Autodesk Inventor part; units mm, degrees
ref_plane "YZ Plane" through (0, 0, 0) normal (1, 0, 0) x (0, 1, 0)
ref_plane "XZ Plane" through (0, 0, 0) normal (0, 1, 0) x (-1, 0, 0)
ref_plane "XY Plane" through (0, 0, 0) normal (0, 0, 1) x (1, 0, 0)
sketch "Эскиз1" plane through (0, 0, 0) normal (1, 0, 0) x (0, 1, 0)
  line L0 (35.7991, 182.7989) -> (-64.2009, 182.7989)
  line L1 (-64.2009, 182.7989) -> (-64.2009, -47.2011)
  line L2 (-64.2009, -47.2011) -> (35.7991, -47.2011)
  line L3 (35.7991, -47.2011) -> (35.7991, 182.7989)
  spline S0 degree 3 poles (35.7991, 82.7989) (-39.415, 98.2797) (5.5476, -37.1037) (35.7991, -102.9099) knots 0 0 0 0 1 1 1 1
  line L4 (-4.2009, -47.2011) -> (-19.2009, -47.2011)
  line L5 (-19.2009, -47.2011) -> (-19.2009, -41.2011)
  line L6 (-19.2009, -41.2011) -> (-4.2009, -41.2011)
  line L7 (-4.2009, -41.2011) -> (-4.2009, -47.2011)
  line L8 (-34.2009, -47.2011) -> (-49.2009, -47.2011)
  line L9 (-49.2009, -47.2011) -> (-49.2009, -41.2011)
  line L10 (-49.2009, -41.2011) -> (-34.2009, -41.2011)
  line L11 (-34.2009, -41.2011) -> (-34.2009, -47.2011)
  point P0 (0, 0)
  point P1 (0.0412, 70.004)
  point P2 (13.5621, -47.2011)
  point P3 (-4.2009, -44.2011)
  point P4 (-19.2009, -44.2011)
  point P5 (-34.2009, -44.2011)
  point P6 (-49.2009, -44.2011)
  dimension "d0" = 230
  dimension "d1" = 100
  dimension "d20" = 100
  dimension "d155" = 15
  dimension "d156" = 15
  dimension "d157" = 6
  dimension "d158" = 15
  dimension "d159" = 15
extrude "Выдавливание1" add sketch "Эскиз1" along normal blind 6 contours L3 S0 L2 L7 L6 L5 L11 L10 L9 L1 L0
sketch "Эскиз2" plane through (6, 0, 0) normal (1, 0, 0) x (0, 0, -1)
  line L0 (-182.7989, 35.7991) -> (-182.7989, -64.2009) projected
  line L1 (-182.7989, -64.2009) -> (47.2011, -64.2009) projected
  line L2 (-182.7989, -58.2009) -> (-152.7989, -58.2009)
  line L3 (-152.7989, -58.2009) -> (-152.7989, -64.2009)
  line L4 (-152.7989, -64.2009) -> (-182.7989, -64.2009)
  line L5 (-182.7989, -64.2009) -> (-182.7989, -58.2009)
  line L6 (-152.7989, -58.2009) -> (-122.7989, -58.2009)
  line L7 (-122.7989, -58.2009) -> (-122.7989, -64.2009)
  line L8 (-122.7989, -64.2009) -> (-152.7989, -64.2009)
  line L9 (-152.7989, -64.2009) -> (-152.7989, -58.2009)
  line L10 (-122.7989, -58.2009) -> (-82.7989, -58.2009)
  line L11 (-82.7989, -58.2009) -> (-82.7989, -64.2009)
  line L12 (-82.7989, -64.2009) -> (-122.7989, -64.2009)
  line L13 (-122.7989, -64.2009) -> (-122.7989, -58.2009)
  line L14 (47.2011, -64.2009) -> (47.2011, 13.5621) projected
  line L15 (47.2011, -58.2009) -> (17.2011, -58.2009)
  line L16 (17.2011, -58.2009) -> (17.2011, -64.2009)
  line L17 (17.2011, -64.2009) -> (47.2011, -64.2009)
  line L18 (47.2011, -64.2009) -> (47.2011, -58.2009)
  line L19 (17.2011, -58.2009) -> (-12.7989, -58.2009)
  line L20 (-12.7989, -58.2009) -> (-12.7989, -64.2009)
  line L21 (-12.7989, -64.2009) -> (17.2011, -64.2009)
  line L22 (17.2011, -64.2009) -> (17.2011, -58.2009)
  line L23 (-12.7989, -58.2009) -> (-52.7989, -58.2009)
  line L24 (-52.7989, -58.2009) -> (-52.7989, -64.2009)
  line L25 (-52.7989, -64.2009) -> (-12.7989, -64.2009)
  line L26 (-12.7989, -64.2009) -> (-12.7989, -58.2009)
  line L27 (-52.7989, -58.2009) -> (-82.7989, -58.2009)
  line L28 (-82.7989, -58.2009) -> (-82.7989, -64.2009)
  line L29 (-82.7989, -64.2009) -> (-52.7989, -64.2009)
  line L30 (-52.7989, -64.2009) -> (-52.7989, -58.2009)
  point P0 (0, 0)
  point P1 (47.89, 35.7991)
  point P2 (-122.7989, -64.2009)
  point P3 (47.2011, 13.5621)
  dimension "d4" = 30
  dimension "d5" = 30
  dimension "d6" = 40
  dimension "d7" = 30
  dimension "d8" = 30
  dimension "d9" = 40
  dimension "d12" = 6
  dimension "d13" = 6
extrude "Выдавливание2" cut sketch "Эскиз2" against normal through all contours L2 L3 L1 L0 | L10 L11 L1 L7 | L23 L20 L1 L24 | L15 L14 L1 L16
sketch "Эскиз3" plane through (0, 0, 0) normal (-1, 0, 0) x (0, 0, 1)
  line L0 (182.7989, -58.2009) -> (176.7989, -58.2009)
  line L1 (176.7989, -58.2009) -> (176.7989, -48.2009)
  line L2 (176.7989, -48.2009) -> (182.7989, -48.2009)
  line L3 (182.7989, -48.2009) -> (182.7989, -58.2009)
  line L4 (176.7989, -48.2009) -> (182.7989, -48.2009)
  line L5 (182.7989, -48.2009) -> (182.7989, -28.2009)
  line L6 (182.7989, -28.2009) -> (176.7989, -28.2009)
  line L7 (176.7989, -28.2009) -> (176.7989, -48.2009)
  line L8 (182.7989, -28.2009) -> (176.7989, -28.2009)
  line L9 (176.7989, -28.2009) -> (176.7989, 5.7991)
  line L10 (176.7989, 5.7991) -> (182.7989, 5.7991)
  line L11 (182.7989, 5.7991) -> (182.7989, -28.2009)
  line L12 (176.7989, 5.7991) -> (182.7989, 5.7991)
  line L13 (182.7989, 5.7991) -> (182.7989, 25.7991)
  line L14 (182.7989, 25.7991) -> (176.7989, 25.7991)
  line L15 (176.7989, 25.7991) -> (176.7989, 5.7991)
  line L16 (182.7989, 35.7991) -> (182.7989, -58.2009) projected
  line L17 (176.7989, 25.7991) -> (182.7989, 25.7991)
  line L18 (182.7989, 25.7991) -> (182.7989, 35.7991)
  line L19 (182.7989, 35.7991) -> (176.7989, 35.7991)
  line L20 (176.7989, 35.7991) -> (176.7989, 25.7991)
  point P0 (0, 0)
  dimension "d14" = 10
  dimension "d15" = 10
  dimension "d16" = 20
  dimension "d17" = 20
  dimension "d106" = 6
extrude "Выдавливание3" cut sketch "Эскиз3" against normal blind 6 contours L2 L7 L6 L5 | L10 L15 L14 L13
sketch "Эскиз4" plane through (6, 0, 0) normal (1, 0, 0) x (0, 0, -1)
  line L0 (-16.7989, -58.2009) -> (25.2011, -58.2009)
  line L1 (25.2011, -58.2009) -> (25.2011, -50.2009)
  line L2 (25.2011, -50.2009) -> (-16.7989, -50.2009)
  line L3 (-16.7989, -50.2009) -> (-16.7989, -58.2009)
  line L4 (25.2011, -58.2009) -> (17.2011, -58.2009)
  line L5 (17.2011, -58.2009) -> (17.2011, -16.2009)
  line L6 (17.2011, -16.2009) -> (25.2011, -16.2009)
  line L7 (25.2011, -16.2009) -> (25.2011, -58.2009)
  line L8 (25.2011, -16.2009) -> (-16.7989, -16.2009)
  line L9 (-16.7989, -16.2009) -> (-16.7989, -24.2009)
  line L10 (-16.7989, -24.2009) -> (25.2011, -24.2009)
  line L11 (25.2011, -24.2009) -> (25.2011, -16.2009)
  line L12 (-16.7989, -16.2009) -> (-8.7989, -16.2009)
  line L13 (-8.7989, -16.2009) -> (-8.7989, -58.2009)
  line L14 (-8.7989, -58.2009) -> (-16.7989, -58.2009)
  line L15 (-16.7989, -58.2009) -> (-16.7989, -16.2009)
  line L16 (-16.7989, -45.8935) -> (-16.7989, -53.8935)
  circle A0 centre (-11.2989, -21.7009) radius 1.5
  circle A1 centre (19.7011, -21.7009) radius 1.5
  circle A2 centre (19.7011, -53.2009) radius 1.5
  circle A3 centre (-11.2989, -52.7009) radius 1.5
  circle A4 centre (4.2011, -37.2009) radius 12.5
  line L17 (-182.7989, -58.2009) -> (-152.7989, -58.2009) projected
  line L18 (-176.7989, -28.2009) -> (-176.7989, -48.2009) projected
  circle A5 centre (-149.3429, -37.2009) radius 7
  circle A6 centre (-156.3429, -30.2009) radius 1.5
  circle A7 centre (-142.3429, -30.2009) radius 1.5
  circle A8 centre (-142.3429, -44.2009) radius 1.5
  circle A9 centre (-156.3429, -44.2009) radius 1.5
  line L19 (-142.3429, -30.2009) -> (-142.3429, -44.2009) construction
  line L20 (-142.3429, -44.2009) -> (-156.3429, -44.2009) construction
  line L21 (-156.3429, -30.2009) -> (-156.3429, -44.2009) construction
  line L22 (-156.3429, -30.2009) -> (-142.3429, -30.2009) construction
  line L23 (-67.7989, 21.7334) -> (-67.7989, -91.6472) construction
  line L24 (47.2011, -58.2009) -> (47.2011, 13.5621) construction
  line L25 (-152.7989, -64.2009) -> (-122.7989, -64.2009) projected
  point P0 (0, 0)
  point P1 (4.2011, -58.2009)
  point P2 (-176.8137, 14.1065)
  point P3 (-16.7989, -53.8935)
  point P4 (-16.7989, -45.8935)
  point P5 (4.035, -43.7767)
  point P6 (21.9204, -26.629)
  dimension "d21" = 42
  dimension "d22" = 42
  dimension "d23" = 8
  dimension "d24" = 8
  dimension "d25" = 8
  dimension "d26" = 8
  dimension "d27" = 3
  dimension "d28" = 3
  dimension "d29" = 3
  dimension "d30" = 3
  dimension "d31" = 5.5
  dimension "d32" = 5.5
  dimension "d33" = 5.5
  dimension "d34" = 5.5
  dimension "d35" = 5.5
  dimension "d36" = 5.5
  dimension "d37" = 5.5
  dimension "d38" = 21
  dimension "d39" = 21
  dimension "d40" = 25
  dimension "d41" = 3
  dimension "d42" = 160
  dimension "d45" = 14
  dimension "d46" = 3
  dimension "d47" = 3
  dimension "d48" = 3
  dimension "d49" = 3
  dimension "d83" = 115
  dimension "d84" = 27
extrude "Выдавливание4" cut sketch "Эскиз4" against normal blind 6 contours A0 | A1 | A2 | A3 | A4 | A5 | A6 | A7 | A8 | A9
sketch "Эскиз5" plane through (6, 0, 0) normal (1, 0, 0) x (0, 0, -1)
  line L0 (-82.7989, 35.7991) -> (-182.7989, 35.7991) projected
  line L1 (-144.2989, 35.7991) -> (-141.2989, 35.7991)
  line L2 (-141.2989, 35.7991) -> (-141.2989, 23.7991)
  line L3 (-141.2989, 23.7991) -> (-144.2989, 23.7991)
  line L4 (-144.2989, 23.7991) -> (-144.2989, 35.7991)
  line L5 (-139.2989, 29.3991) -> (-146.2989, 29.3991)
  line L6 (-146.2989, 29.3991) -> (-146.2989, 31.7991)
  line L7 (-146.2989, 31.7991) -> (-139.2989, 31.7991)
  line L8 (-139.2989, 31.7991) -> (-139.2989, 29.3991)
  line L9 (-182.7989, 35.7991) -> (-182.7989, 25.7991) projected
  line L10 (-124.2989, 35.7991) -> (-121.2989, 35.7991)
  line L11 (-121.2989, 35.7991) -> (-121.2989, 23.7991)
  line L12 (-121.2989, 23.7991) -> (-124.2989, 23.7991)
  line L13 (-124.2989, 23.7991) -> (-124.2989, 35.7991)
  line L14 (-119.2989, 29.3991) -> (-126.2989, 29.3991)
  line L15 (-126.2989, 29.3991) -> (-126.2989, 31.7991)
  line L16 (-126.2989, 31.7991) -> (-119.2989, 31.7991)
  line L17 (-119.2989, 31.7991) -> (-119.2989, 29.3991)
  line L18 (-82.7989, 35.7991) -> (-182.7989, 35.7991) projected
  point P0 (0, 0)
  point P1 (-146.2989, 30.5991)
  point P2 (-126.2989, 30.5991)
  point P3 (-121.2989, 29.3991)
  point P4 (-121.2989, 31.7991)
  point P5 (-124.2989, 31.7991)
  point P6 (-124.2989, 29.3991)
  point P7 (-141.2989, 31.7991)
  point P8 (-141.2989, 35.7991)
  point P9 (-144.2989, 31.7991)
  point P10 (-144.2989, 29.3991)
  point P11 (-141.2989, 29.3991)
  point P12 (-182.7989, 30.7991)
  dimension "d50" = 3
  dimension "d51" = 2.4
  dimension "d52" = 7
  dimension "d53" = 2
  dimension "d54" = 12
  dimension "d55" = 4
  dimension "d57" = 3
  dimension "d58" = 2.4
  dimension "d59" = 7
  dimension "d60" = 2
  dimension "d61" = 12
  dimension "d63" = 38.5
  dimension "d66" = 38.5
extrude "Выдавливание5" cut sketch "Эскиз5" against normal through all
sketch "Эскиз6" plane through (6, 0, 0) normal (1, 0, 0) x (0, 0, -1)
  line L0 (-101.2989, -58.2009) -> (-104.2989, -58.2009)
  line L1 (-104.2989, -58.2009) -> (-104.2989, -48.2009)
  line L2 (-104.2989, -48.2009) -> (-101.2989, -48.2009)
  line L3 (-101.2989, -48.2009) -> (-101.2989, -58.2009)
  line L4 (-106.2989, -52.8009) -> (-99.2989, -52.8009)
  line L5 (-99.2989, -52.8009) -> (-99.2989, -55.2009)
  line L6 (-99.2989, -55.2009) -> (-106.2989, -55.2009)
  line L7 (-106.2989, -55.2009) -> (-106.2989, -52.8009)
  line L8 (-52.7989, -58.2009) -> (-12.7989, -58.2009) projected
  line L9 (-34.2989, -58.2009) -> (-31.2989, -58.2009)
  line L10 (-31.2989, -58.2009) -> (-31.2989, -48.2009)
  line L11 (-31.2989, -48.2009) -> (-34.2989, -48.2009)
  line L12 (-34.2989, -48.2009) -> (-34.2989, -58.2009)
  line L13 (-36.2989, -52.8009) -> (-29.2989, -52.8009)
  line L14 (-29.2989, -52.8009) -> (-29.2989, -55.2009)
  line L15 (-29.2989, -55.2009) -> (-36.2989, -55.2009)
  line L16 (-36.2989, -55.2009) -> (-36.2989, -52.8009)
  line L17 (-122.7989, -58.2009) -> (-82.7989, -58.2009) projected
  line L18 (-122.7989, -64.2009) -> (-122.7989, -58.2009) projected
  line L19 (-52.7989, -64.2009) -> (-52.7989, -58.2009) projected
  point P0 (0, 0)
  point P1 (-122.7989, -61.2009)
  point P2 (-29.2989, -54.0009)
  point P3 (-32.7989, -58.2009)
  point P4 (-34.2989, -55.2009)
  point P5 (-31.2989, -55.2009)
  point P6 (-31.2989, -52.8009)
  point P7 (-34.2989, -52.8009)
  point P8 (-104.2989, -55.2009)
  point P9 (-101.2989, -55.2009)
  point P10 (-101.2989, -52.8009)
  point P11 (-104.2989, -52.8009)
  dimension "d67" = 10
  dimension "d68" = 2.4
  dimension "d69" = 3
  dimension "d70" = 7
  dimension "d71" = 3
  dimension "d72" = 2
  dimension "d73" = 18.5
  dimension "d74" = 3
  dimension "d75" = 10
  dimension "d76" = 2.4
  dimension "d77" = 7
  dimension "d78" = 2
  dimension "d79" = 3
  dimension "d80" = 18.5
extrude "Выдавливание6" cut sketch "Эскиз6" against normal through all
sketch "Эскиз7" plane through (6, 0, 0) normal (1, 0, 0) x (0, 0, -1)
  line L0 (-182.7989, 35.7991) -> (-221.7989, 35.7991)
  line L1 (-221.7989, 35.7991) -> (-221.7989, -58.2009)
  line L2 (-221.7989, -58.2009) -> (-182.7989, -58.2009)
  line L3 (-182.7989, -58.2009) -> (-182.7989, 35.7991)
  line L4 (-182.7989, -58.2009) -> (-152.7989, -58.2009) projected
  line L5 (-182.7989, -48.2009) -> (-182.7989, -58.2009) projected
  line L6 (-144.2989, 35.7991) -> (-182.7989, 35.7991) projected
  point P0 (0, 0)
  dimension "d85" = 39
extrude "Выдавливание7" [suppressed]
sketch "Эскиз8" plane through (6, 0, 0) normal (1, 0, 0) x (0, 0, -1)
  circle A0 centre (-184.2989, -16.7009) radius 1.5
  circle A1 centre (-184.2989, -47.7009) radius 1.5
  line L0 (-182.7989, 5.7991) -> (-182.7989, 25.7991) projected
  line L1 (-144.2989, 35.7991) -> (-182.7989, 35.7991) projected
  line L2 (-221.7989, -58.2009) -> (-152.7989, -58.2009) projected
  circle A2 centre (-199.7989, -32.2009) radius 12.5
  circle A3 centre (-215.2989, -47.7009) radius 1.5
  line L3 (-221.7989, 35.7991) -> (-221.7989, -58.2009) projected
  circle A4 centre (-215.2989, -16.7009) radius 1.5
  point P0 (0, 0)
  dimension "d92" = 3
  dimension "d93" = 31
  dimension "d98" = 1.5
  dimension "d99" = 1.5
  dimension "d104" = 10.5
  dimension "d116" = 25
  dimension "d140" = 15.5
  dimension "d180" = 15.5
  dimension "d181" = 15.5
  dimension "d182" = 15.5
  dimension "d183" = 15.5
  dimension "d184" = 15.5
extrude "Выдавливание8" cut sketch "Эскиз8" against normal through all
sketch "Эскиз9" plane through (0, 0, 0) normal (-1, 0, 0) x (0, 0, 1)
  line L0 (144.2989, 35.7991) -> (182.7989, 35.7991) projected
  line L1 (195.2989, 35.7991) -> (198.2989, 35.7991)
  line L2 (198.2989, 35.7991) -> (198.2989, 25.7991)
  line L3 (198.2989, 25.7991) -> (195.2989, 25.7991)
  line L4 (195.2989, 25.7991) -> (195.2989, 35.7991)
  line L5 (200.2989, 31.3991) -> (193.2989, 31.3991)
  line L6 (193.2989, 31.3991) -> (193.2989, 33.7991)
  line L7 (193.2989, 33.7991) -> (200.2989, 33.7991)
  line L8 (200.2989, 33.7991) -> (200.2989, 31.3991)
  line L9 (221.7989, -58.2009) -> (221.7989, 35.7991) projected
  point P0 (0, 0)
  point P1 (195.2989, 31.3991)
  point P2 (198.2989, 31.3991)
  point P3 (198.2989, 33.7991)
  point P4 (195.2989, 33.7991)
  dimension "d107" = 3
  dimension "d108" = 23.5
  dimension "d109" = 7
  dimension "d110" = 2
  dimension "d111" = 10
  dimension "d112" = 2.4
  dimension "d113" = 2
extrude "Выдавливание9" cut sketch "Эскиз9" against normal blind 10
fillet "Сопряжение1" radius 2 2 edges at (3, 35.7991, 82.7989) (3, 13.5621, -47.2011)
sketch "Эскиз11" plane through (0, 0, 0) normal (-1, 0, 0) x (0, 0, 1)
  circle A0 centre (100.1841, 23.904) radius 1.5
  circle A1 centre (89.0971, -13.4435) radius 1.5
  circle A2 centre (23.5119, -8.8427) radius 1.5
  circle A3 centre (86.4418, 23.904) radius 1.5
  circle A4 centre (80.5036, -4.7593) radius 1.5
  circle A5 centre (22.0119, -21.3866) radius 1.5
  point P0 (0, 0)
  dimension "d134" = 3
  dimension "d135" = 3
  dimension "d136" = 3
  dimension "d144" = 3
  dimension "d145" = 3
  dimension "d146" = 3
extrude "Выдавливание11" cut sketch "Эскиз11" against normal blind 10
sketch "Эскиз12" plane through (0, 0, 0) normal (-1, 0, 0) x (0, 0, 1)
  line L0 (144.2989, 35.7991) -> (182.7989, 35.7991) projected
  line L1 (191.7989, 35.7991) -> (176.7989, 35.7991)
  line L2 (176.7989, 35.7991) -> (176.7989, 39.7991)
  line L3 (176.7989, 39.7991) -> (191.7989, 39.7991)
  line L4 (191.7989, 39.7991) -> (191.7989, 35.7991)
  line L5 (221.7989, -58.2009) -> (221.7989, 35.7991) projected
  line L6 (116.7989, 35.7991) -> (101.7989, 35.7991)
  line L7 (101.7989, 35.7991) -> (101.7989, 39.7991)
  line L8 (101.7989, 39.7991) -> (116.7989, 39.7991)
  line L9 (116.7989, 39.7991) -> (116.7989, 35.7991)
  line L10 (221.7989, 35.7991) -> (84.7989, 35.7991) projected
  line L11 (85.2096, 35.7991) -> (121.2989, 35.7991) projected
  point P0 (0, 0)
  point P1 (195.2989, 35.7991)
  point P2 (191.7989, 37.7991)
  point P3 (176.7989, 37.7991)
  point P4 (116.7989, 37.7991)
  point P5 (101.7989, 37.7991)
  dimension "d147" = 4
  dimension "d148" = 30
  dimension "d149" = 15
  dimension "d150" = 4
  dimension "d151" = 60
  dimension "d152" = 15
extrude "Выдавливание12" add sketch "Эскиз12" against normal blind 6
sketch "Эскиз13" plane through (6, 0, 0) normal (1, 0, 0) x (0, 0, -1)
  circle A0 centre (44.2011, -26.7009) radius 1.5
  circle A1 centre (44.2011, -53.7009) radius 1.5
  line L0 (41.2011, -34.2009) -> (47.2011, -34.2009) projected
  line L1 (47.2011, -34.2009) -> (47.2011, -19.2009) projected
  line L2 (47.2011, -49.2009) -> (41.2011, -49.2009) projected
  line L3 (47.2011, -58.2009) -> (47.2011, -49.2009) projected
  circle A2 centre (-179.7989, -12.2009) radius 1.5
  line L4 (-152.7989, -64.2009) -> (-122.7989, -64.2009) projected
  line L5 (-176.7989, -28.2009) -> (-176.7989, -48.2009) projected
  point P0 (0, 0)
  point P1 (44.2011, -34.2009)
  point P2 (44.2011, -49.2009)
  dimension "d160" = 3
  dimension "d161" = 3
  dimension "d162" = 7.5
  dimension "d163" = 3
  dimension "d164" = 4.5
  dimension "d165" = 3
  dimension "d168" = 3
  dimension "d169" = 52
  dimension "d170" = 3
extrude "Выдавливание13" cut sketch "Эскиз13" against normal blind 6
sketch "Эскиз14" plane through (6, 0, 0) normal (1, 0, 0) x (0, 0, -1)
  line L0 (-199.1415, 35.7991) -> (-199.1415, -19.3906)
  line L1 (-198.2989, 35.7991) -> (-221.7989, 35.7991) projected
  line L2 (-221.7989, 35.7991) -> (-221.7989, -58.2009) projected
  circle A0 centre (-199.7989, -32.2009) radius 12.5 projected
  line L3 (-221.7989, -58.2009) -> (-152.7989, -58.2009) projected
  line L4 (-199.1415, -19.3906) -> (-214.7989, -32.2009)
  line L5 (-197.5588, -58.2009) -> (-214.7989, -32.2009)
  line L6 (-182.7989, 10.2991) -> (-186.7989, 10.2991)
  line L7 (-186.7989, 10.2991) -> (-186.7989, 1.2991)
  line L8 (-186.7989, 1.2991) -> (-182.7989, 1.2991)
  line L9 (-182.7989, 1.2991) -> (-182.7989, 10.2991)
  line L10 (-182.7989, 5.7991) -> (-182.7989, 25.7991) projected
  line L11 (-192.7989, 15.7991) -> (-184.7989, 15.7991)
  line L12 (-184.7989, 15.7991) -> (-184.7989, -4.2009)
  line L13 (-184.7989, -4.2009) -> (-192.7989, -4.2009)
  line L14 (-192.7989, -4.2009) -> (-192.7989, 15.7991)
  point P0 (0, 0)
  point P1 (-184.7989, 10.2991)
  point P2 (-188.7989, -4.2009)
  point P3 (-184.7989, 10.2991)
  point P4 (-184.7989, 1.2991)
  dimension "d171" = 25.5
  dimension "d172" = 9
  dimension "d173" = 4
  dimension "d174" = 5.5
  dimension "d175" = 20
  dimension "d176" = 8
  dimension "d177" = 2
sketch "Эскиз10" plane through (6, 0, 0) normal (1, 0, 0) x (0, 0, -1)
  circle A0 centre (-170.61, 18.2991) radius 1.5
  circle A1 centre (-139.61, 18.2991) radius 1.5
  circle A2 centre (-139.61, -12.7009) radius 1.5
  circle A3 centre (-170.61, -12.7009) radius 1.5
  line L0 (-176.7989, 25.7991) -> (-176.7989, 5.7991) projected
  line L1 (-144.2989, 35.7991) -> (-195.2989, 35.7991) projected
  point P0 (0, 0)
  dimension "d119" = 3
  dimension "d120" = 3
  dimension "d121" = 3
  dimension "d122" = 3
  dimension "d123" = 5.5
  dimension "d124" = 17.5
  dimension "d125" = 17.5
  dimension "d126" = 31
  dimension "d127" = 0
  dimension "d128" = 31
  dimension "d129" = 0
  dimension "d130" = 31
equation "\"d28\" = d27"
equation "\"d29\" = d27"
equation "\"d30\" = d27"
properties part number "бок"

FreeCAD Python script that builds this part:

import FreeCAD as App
import Part
import Sketcher
Q = App.Units.Quantity


def edges_at(feature, points):
    """Names of the edges that pass closest to the given points."""
    edges = feature.Shape.Edges
    near = lambda p: min(range(len(edges)), key=lambda i: edges[i].distToShape(Part.Vertex(*p))[0])
    return sorted({f"Edge{near(p) + 1}" for p in points})

doc = App.newDocument("Part")
body = doc.addObject("PartDesign::Body", "Body")

# Sketch on YZ plane
sketch1 = body.newObject("Sketcher::SketchObject", "Sketch")
sketch1.AttachmentSupport = (doc.getObject("YZ_Plane"), [""])
sketch1.MapMode = "FlatFace"
sketch1.addGeometry([
    Part.LineSegment(App.Vector(35.7991, 82.7989, 0), App.Vector(35.7991, 182.7989, 0)),  # 0
    Part.LineSegment(App.Vector(35.7991, 182.7989, 0), App.Vector(-64.2009, 182.7989, 0)),  # 1
    Part.LineSegment(App.Vector(-64.2009, 182.7989, 0), App.Vector(-64.2009, -47.2011, 0)),  # 2
    Part.LineSegment(App.Vector(-64.2009, -47.2011, 0), App.Vector(-49.2009, -47.2011, 0)),  # 3
    Part.LineSegment(App.Vector(-49.2009, -47.2011, 0), App.Vector(-49.2009, -41.2011, 0)),  # 4
    Part.LineSegment(App.Vector(-49.2009, -41.2011, 0), App.Vector(-34.2009, -41.2011, 0)),  # 5
    Part.LineSegment(App.Vector(-34.2009, -41.2011, 0), App.Vector(-34.2009, -47.2011, 0)),  # 6
    Part.LineSegment(App.Vector(-34.2009, -47.2011, 0), App.Vector(-19.2009, -47.2011, 0)),  # 7
    Part.LineSegment(App.Vector(-19.2009, -47.2011, 0), App.Vector(-19.2009, -41.2011, 0)),  # 8
    Part.LineSegment(App.Vector(-19.2009, -41.2011, 0), App.Vector(-4.2009, -41.2011, 0)),  # 9
    Part.LineSegment(App.Vector(-4.2009, -41.2011, 0), App.Vector(-4.2009, -47.2011, 0)),  # 10
    Part.LineSegment(App.Vector(-4.2009, -47.2011, 0), App.Vector(13.562104, -47.2011, 0)),  # 11
    Part.BSplineCurve([App.Vector(35.7991, 82.7989, 0), App.Vector(-21.551287, 94.602935, 0), App.Vector(-9.031077, 18.694695, 0), App.Vector(13.562104, -47.2011, 0)], [4, 4], [0, 0.762495158], False, 3, [1, 1, 1, 1], False),  # 12
], False)
sketch1.addConstraint([
    Sketcher.Constraint("Block", 12),
    Sketcher.Constraint("Coincident", 0, 2, 1, 1),
    Sketcher.Constraint("Coincident", 1, 2, 2, 1),
    Sketcher.Constraint("Coincident", 2, 2, 3, 1),
    Sketcher.Constraint("Coincident", 3, 2, 4, 1),
    Sketcher.Constraint("Coincident", 4, 2, 5, 1),
    Sketcher.Constraint("Coincident", 5, 2, 6, 1),
    Sketcher.Constraint("Coincident", 6, 2, 7, 1),
    Sketcher.Constraint("Coincident", 7, 2, 8, 1),
    Sketcher.Constraint("Coincident", 8, 2, 9, 1),
    Sketcher.Constraint("Coincident", 9, 2, 10, 1),
    Sketcher.Constraint("Coincident", 10, 2, 11, 1),
    Sketcher.Constraint("Coincident", 11, 2, 12, 2),
    Sketcher.Constraint("Coincident", 12, 1, 0, 1),
    Sketcher.Constraint("Vertical", 0),
    Sketcher.Constraint("Horizontal", 1),
    Sketcher.Constraint("Vertical", 2),
    Sketcher.Constraint("Horizontal", 3),
    Sketcher.Constraint("Vertical", 4),
    Sketcher.Constraint("Horizontal", 5),
    Sketcher.Constraint("Vertical", 6),
    Sketcher.Constraint("Horizontal", 7),
    Sketcher.Constraint("Vertical", 8),
    Sketcher.Constraint("Horizontal", 9),
    Sketcher.Constraint("Vertical", 10),
    Sketcher.Constraint("Horizontal", 11),
    Sketcher.Constraint("Horizontal", 3, 2, 6, 2),
    Sketcher.Constraint("Horizontal", 5, 2, 8, 2),
    Sketcher.Constraint("Horizontal", 7, 2, 10, 2),
    Sketcher.Constraint("Equal", 3, 5),
    Sketcher.Constraint("Equal", 5, 7),
    Sketcher.Constraint("Equal", 7, 9),
    Sketcher.Constraint("Equal", 1, 0),
    Sketcher.Constraint("DistanceX", 1, 2, 1, 1, Q("100 mm")),
    Sketcher.Constraint("DistanceX", 3, 1, 3, 2, Q("15 mm")),
    Sketcher.Constraint("DistanceY", 4, 1, 4, 2, Q("6 mm")),
])
pad1 = body.newObject("PartDesign::Pad", "Pad")
pad1.Profile = sketch1
pad1.Length = 6

# Sketch on YZ plane
sketch2 = body.newObject("Sketcher::SketchObject", "Sketch001")
sketch2.AttachmentSupport = (doc.getObject("YZ_Plane"), [""])
sketch2.MapMode = "FlatFace"
sketch2.AttachmentOffset = App.Placement(App.Vector(0, 0, 6), App.Rotation())
sketch2.addGeometry([
    Part.LineSegment(App.Vector(-58, 153, 0), App.Vector(-58, 183, 0)),  # 0
    Part.LineSegment(App.Vector(-58, 183, 0), App.Vector(-64, 183, 0)),  # 1
    Part.LineSegment(App.Vector(-64, 183, 0), App.Vector(-64, 153, 0)),  # 2
    Part.LineSegment(App.Vector(-64, 153, 0), App.Vector(-58, 153, 0)),  # 3
    Part.LineSegment(App.Vector(-58, 83, 0), App.Vector(-58, 123, 0)),  # 4
    Part.LineSegment(App.Vector(-58, 123, 0), App.Vector(-64, 123, 0)),  # 5
    Part.LineSegment(App.Vector(-64, 123, 0), App.Vector(-64, 83, 0)),  # 6
    Part.LineSegment(App.Vector(-64, 83, 0), App.Vector(-58, 83, 0)),  # 7
    Part.LineSegment(App.Vector(-58, 13, 0), App.Vector(-58, 53, 0)),  # 8
    Part.LineSegment(App.Vector(-58, 53, 0), App.Vector(-64, 53, 0)),  # 9
    Part.LineSegment(App.Vector(-64, 53, 0), App.Vector(-64, 13, 0)),  # 10
    Part.LineSegment(App.Vector(-64, 13, 0), App.Vector(-58, 13, 0)),  # 11
    Part.LineSegment(App.Vector(-58, -47, 0), App.Vector(-58, -17, 0)),  # 12
    Part.LineSegment(App.Vector(-58, -17, 0), App.Vector(-64, -17, 0)),  # 13
    Part.LineSegment(App.Vector(-64, -17, 0), App.Vector(-64, -47, 0)),  # 14
    Part.LineSegment(App.Vector(-64, -47, 0), App.Vector(-58, -47, 0)),  # 15
], False)
sketch2.addConstraint([
    Sketcher.Constraint("Coincident", 0, 2, 1, 1),
    Sketcher.Constraint("Coincident", 1, 2, 2, 1),
    Sketcher.Constraint("Coincident", 2, 2, 3, 1),
    Sketcher.Constraint("Coincident", 3, 2, 0, 1),
    Sketcher.Constraint("Coincident", 4, 2, 5, 1),
    Sketcher.Constraint("Coincident", 5, 2, 6, 1),
    Sketcher.Constraint("Coincident", 6, 2, 7, 1),
    Sketcher.Constraint("Coincident", 7, 2, 4, 1),
    Sketcher.Constraint("Coincident", 8, 2, 9, 1),
    Sketcher.Constraint("Coincident", 9, 2, 10, 1),
    Sketcher.Constraint("Coincident", 10, 2, 11, 1),
    Sketcher.Constraint("Coincident", 11, 2, 8, 1),
    Sketcher.Constraint("Coincident", 12, 2, 13, 1),
    Sketcher.Constraint("Coincident", 13, 2, 14, 1),
    Sketcher.Constraint("Coincident", 14, 2, 15, 1),
    Sketcher.Constraint("Coincident", 15, 2, 12, 1),
    Sketcher.Constraint("Vertical", 0),
    Sketcher.Constraint("Horizontal", 1),
    Sketcher.Constraint("Vertical", 2),
    Sketcher.Constraint("Horizontal", 3),
    Sketcher.Constraint("Vertical", 4),
    Sketcher.Constraint("Horizontal", 5),
    Sketcher.Constraint("Vertical", 6),
    Sketcher.Constraint("Horizontal", 7),
    Sketcher.Constraint("Vertical", 8),
    Sketcher.Constraint("Horizontal", 9),
    Sketcher.Constraint("Vertical", 10),
    Sketcher.Constraint("Horizontal", 11),
    Sketcher.Constraint("Vertical", 12),
    Sketcher.Constraint("Horizontal", 13),
    Sketcher.Constraint("Vertical", 14),
    Sketcher.Constraint("Horizontal", 15),
    Sketcher.Constraint("Vertical", 3, 2, 4, 2),
    Sketcher.Constraint("Vertical", 2, 2, 5, 2),
    Sketcher.Constraint("Vertical", 7, 2, 8, 2),
    Sketcher.Constraint("Vertical", 6, 2, 9, 2),
    Sketcher.Constraint("Vertical", 11, 2, 12, 2),
    Sketcher.Constraint("Vertical", 10, 2, 13, 2),
    Sketcher.Constraint("Equal", 6, 8),
    Sketcher.Constraint("Equal", 2, 12),
    Sketcher.Constraint("DistanceX", 1, 2, 1, 1, Q("6 mm")),
    Sketcher.Constraint("DistanceY", 0, 1, 0, 2, Q("30 mm")),
    Sketcher.Constraint("DistanceY", 4, 1, 4, 2, Q("40 mm")),
    Sketcher.Constraint("DistanceY", 4, 2, 3, 2, Q("30 mm")),
    Sketcher.Constraint("DistanceY", 8, 2, 7, 2, Q("30 mm")),
    Sketcher.Constraint("DistanceY", 12, 2, 11, 2, Q("30 mm")),
    Sketcher.Constraint("DistanceX", 0, 2, -1, 1, Q("58.201 mm")),
    Sketcher.Constraint("DistanceY", -1, 1, 0, 2, Q("182.799 mm")),
])
pocket1 = body.newObject("PartDesign::Pocket", "Pocket")
pocket1.Profile = sketch2
pocket1.Type = "ThroughAll"

# Sketch on YZ plane
sketch3 = body.newObject("Sketcher::SketchObject", "Sketch002")
sketch3.AttachmentSupport = (doc.getObject("YZ_Plane"), [""])
sketch3.MapMode = "FlatFace"
sketch3.addGeometry([
    Part.LineSegment(App.Vector(-48, 177, 0), App.Vector(-48, 183, 0)),  # 0
    Part.LineSegment(App.Vector(-48, 183, 0), App.Vector(-28, 183, 0)),  # 1
    Part.LineSegment(App.Vector(-28, 183, 0), App.Vector(-28, 177, 0)),  # 2
    Part.LineSegment(App.Vector(-28, 177, 0), App.Vector(-48, 177, 0)),  # 3
    Part.LineSegment(App.Vector(6, 177, 0), App.Vector(6, 183, 0)),  # 4
    Part.LineSegment(App.Vector(6, 183, 0), App.Vector(26, 183, 0)),  # 5
    Part.LineSegment(App.Vector(26, 183, 0), App.Vector(26, 177, 0)),  # 6
    Part.LineSegment(App.Vector(26, 177, 0), App.Vector(6, 177, 0)),  # 7
], False)
sketch3.addConstraint([
    Sketcher.Constraint("Coincident", 0, 2, 1, 1),
    Sketcher.Constraint("Coincident", 1, 2, 2, 1),
    Sketcher.Constraint("Coincident", 2, 2, 3, 1),
    Sketcher.Constraint("Coincident", 3, 2, 0, 1),
    Sketcher.Constraint("Coincident", 4, 2, 5, 1),
    Sketcher.Constraint("Coincident", 5, 2, 6, 1),
    Sketcher.Constraint("Coincident", 6, 2, 7, 1),
    Sketcher.Constraint("Coincident", 7, 2, 4, 1),
    Sketcher.Constraint("Vertical", 0),
    Sketcher.Constraint("Horizontal", 1),
    Sketcher.Constraint("Vertical", 2),
    Sketcher.Constraint("Horizontal", 3),
    Sketcher.Constraint("Vertical", 4),
    Sketcher.Constraint("Horizontal", 5),
    Sketcher.Constraint("Vertical", 6),
    Sketcher.Constraint("Horizontal", 7),
    Sketcher.Constraint("Horizontal", 1, 2, 4, 2),
    Sketcher.Constraint("Horizontal", 3, 2, 6, 2),
    Sketcher.Constraint("Equal", 3, 5),
    Sketcher.Constraint("DistanceX", 1, 1, 1, 2, Q("20 mm")),
    Sketcher.Constraint("DistanceY", 0, 1, 0, 2, Q("6 mm")),
    Sketcher.Constraint("DistanceX", 1, 2, 4, 2, Q("34 mm")),
    Sketcher.Constraint("DistanceX", 0, 2, -1, 1, Q("48.201 mm")),
    Sketcher.Constraint("DistanceY", -1, 1, 0, 2, Q("182.799 mm")),
])
pocket2 = body.newObject("PartDesign::Pocket", "Pocket001")
pocket2.Profile = sketch3
pocket2.Length = 6
pocket2.Reversed = True

# Sketch on YZ plane
sketch4 = body.newObject("Sketcher::SketchObject", "Sketch003")
sketch4.AttachmentSupport = (doc.getObject("YZ_Plane"), [""])
sketch4.MapMode = "FlatFace"
sketch4.AttachmentOffset = App.Placement(App.Vector(0, 0, 6), App.Rotation())
sketch4.addGeometry([
    Part.Circle(App.Vector(-21.7, 11.3, 0), App.Vector(0, 0, 1), 1.5),  # 0
    Part.Circle(App.Vector(-21.7, -19.7, 0), App.Vector(0, 0, 1), 1.5),  # 1
    Part.Circle(App.Vector(-53.2, -19.7, 0), App.Vector(0, 0, 1), 1.5),  # 2
    Part.Circle(App.Vector(-52.7, 11.3, 0), App.Vector(0, 0, 1), 1.5),  # 3
    Part.Circle(App.Vector(-37.2, -4.2, 0), App.Vector(0, 0, 1), 12.5),  # 4
    Part.Circle(App.Vector(-37.2, 149.3, 0), App.Vector(0, 0, 1), 7),  # 5
    Part.Circle(App.Vector(-30.2, 156.3, 0), App.Vector(0, 0, 1), 1.5),  # 6
    Part.Circle(App.Vector(-30.2, 142.3, 0), App.Vector(0, 0, 1), 1.5),  # 7
    Part.Circle(App.Vector(-44.2, 142.3, 0), App.Vector(0, 0, 1), 1.5),  # 8
    Part.Circle(App.Vector(-44.2, 156.3, 0), App.Vector(0, 0, 1), 1.5),  # 9
], False)
sketch4.addConstraint([
    Sketcher.Constraint("Equal", 0, 1),
    Sketcher.Constraint("Equal", 1, 2),
    Sketcher.Constraint("Equal", 2, 3),
    Sketcher.Constraint("Equal", 3, 6),
    Sketcher.Constraint("Equal", 6, 7),
    Sketcher.Constraint("Equal", 7, 8),
    Sketcher.Constraint("Equal", 8, 9),
    Sketcher.Constraint("Horizontal", 1, 3, 2, 3),
    Sketcher.Constraint("Horizontal", 0, 3, 3, 3),
    Sketcher.Constraint("Horizontal", 7, 3, 8, 3),
    Sketcher.Constraint("Horizontal", 6, 3, 9, 3),
    Sketcher.Constraint("Vertical", 0, 3, 1, 3),
    Sketcher.Constraint("Vertical", 4, 3, 5, 3),
    Sketcher.Constraint("Vertical", 6, 3, 7, 3),
    Sketcher.Constraint("Vertical", 8, 3, 9, 3),
    Sketcher.Constraint("Diameter", 0, Q("3 mm")),
    Sketcher.Constraint("Diameter", 4, Q("25 mm")),
    Sketcher.Constraint("Diameter", 5, Q("14 mm")),
    Sketcher.Constraint("DistanceY", 7, 3, 6, 3, Q("14 mm")),
    Sketcher.Constraint("DistanceX", 8, 3, 7, 3, Q("14 mm")),
    Sketcher.Constraint("DistanceY", 1, 3, 0, 3, Q("31 mm")),
    Sketcher.Constraint("DistanceX", 3, 3, 0, 3, Q("31 mm")),
    Sketcher.Constraint("DistanceX", 2, 3, 4, 3, Q("16 mm")),
    Sketcher.Constraint("DistanceX", 5, 3, 6, 3, Q("7 mm")),
    Sketcher.Constraint("DistanceY", 5, 3, 6, 3, Q("7 mm")),
    Sketcher.Constraint("DistanceX", 2, 3, 1, 3, Q("31.5 mm")),
    Sketcher.Constraint("DistanceY", 4, 3, 0, 3, Q("15.5 mm")),
    Sketcher.Constraint("DistanceX", 0, 3, -1, 1, Q("21.701 mm")),
    Sketcher.Constraint("DistanceY", -1, 1, 0, 3, Q("11.299 mm")),
    Sketcher.Constraint("DistanceY", -1, 1, 5, 3, Q("149.343 mm")),
])
pocket3 = body.newObject("PartDesign::Pocket", "Pocket002")
pocket3.Profile = sketch4
pocket3.Length = 6

# Sketch on YZ plane
sketch5 = body.newObject("Sketcher::SketchObject", "Sketch004")
sketch5.AttachmentSupport = (doc.getObject("YZ_Plane"), [""])
sketch5.MapMode = "FlatFace"
sketch5.AttachmentOffset = App.Placement(App.Vector(0, 0, 6), App.Rotation())
sketch5.addGeometry([
    Part.LineSegment(App.Vector(31.8, 121.3, 0), App.Vector(35.8, 121.3, 0)),  # 0
    Part.LineSegment(App.Vector(35.8, 121.3, 0), App.Vector(35.8, 124.3, 0)),  # 1
    Part.LineSegment(App.Vector(35.8, 124.3, 0), App.Vector(31.8, 124.3, 0)),  # 2
    Part.LineSegment(App.Vector(31.8, 124.3, 0), App.Vector(31.8, 126.3, 0)),  # 3
    Part.LineSegment(App.Vector(31.8, 126.3, 0), App.Vector(29.4, 126.3, 0)),  # 4
    Part.LineSegment(App.Vector(29.4, 126.3, 0), App.Vector(29.4, 124.3, 0)),  # 5
    Part.LineSegment(App.Vector(29.4, 124.3, 0), App.Vector(23.8, 124.3, 0)),  # 6
    Part.LineSegment(App.Vector(23.8, 124.3, 0), App.Vector(23.8, 121.3, 0)),  # 7
    Part.LineSegment(App.Vector(23.8, 121.3, 0), App.Vector(29.4, 121.3, 0)),  # 8
    Part.LineSegment(App.Vector(29.4, 121.3, 0), App.Vector(29.4, 119.3, 0)),  # 9
    Part.LineSegment(App.Vector(29.4, 119.3, 0), App.Vector(31.8, 119.3, 0)),  # 10
    Part.LineSegment(App.Vector(31.8, 119.3, 0), App.Vector(31.8, 121.3, 0)),  # 11
    Part.LineSegment(App.Vector(31.8, 141.3, 0), App.Vector(35.8, 141.3, 0)),  # 12
    Part.LineSegment(App.Vector(35.8, 141.3, 0), App.Vector(35.8, 144.3, 0)),  # 13
    Part.LineSegment(App.Vector(35.8, 144.3, 0), App.Vector(31.8, 144.3, 0)),  # 14
    Part.LineSegment(App.Vector(31.8, 144.3, 0), App.Vector(31.8, 146.3, 0)),  # 15
    Part.LineSegment(App.Vector(31.8, 146.3, 0), App.Vector(29.4, 146.3, 0)),  # 16
    Part.LineSegment(App.Vector(29.4, 146.3, 0), App.Vector(29.4, 144.3, 0)),  # 17
    Part.LineSegment(App.Vector(29.4, 144.3, 0), App.Vector(23.8, 144.3, 0)),  # 18
    Part.LineSegment(App.Vector(23.8, 144.3, 0), App.Vector(23.8, 141.3, 0)),  # 19
    Part.LineSegment(App.Vector(23.8, 141.3, 0), App.Vector(29.4, 141.3, 0)),  # 20
    Part.LineSegment(App.Vector(29.4, 141.3, 0), App.Vector(29.4, 139.3, 0)),  # 21
    Part.LineSegment(App.Vector(29.4, 139.3, 0), App.Vector(31.8, 139.3, 0)),  # 22
    Part.LineSegment(App.Vector(31.8, 139.3, 0), App.Vector(31.8, 141.3, 0)),  # 23
], False)
sketch5.addConstraint([
    Sketcher.Constraint("Coincident", 0, 2, 1, 1),
    Sketcher.Constraint("Coincident", 1, 2, 2, 1),
    Sketcher.Constraint("Coincident", 2, 2, 3, 1),
    Sketcher.Constraint("Coincident", 3, 2, 4, 1),
    Sketcher.Constraint("Coincident", 4, 2, 5, 1),
    Sketcher.Constraint("Coincident", 5, 2, 6, 1),
    Sketcher.Constraint("Coincident", 6, 2, 7, 1),
    Sketcher.Constraint("Coincident", 7, 2, 8, 1),
    Sketcher.Constraint("Coincident", 8, 2, 9, 1),
    Sketcher.Constraint("Coincident", 9, 2, 10, 1),
    Sketcher.Constraint("Coincident", 10, 2, 11, 1),
    Sketcher.Constraint("Coincident", 11, 2, 0, 1),
    Sketcher.Constraint("Coincident", 12, 2, 13, 1),
    Sketcher.Constraint("Coincident", 13, 2, 14, 1),
    Sketcher.Constraint("Coincident", 14, 2, 15, 1),
    Sketcher.Constraint("Coincident", 15, 2, 16, 1),
    Sketcher.Constraint("Coincident", 16, 2, 17, 1),
    Sketcher.Constraint("Coincident", 17, 2, 18, 1),
    Sketcher.Constraint("Coincident", 18, 2, 19, 1),
    Sketcher.Constraint("Coincident", 19, 2, 20, 1),
    Sketcher.Constraint("Coincident", 20, 2, 21, 1),
    Sketcher.Constraint("Coincident", 21, 2, 22, 1),
    Sketcher.Constraint("Coincident", 22, 2, 23, 1),
    Sketcher.Constraint("Coincident", 23, 2, 12, 1),
    Sketcher.Constraint("Horizontal", 0),
    Sketcher.Constraint("Vertical", 1),
    Sketcher.Constraint("Horizontal", 2),
    Sketcher.Constraint("Vertical", 3),
    Sketcher.Constraint("Horizontal", 4),
    Sketcher.Constraint("Vertical", 5),
    Sketcher.Constraint("Horizontal", 6),
    Sketcher.Constraint("Vertical", 7),
    Sketcher.Constraint("Horizontal", 8),
    Sketcher.Constraint("Vertical", 9),
    Sketcher.Constraint("Horizontal", 10),
    Sketcher.Constraint("Vertical", 11),
    Sketcher.Constraint("Horizontal", 12),
    Sketcher.Constraint("Vertical", 13),
    Sketcher.Constraint("Horizontal", 14),
    Sketcher.Constraint("Vertical", 15),
    Sketcher.Constraint("Horizontal", 16),
    Sketcher.Constraint("Vertical", 17),
    Sketcher.Constraint("Horizontal", 18),
    Sketcher.Constraint("Vertical", 19),
    Sketcher.Constraint("Horizontal", 20),
    Sketcher.Constraint("Vertical", 21),
    Sketcher.Constraint("Horizontal", 22),
    Sketcher.Constraint("Vertical", 23),
    Sketcher.Constraint("Horizontal", 2, 2, 5, 2),
    Sketcher.Constraint("Horizontal", 0, 2, 7, 2),
    Sketcher.Constraint("Horizontal", 14, 2, 17, 2),
    Sketcher.Constraint("Horizontal", 12, 2, 19, 2),
    Sketcher.Constraint("Vertical", 5, 2, 8, 2),
    Sketcher.Constraint("Vertical", 3, 2, 10, 2),
    Sketcher.Constraint("Vertical", 1, 2, 12, 2),
    Sketcher.Constraint("Vertical", 11, 2, 14, 2),
    Sketcher.Constraint("Vertical", 9, 2, 16, 2),
    Sketcher.Constraint("Vertical", 7, 2, 18, 2),
    Sketcher.Constraint("Vertical", 17, 2, 20, 2),
    Sketcher.Constraint("Vertical", 15, 2, 22, 2),
    Sketcher.Constraint("Equal", 5, 9),
    Sketcher.Constraint("Equal", 7, 13),
    Sketcher.Constraint("Equal", 11, 15),
    Sketcher.Constraint("Equal", 17, 21),
    Sketcher.Constraint("DistanceX", 0, 1, 0, 2, Q("4 mm")),
    Sketcher.Constraint("DistanceY", 1, 1, 1, 2, Q("3 mm")),
    Sketcher.Constraint("DistanceY", 3, 1, 3, 2, Q("2 mm")),
    Sketcher.Constraint("DistanceX", 4, 2, 4, 1, Q("2.4 mm")),
    Sketcher.Constraint("DistanceX", 6, 2, 1, 2, Q("12 mm")),
    Sketcher.Constraint("DistanceY", 3, 2, 12, 2, Q("15 mm")),
    Sketcher.Constraint("DistanceX", -1, 1, 0, 2, Q("35.799 mm")),
    Sketcher.Constraint("DistanceY", -1, 1, 0, 2, Q("121.299 mm")),
])
pocket4 = body.newObject("PartDesign::Pocket", "Pocket003")
pocket4.Profile = sketch5
pocket4.Type = "ThroughAll"

# Sketch on YZ plane
sketch6 = body.newObject("Sketcher::SketchObject", "Sketch005")
sketch6.AttachmentSupport = (doc.getObject("YZ_Plane"), [""])
sketch6.MapMode = "FlatFace"
sketch6.AttachmentOffset = App.Placement(App.Vector(0, 0, 6), App.Rotation())
sketch6.addGeometry([
    Part.LineSegment(App.Vector(-58.2, 104.3, 0), App.Vector(-58.2, 101.3, 0)),  # 0
    Part.LineSegment(App.Vector(-58.2, 101.3, 0), App.Vector(-55.2, 101.3, 0)),  # 1
    Part.LineSegment(App.Vector(-55.2, 101.3, 0), App.Vector(-55.2, 99.3, 0)),  # 2
    Part.LineSegment(App.Vector(-55.2, 99.3, 0), App.Vector(-52.8, 99.3, 0)),  # 3
    Part.LineSegment(App.Vector(-52.8, 99.3, 0), App.Vector(-52.8, 101.3, 0)),  # 4
    Part.LineSegment(App.Vector(-52.8, 101.3, 0), App.Vector(-48.2, 101.3, 0)),  # 5
    Part.LineSegment(App.Vector(-48.2, 101.3, 0), App.Vector(-48.2, 104.3, 0)),  # 6
    Part.LineSegment(App.Vector(-48.2, 104.3, 0), App.Vector(-52.8, 104.3, 0)),  # 7
    Part.LineSegment(App.Vector(-52.8, 104.3, 0), App.Vector(-52.8, 106.3, 0)),  # 8
    Part.LineSegment(App.Vector(-52.8, 106.3, 0), App.Vector(-55.2, 106.3, 0)),  # 9
    Part.LineSegment(App.Vector(-55.2, 106.3, 0), App.Vector(-55.2, 104.3, 0)),  # 10
    Part.LineSegment(App.Vector(-55.2, 104.3, 0), App.Vector(-58.2, 104.3, 0)),  # 11
    Part.LineSegment(App.Vector(-55.2, 34.3, 0), App.Vector(-58.2, 34.3, 0)),  # 12
    Part.LineSegment(App.Vector(-58.2, 34.3, 0), App.Vector(-58.2, 31.3, 0)),  # 13
    Part.LineSegment(App.Vector(-58.2, 31.3, 0), App.Vector(-55.2, 31.3, 0)),  # 14
    Part.LineSegment(App.Vector(-55.2, 31.3, 0), App.Vector(-55.2, 29.3, 0)),  # 15
    Part.LineSegment(App.Vector(-55.2, 29.3, 0), App.Vector(-52.8, 29.3, 0)),  # 16
    Part.LineSegment(App.Vector(-52.8, 29.3, 0), App.Vector(-52.8, 31.3, 0)),  # 17
    Part.LineSegment(App.Vector(-52.8, 31.3, 0), App.Vector(-48.2, 31.3, 0)),  # 18
    Part.LineSegment(App.Vector(-48.2, 31.3, 0), App.Vector(-48.2, 34.3, 0)),  # 19
    Part.LineSegment(App.Vector(-48.2, 34.3, 0), App.Vector(-52.8, 34.3, 0)),  # 20
    Part.LineSegment(App.Vector(-52.8, 34.3, 0), App.Vector(-52.8, 36.3, 0)),  # 21
    Part.LineSegment(App.Vector(-52.8, 36.3, 0), App.Vector(-55.2, 36.3, 0)),  # 22
    Part.LineSegment(App.Vector(-55.2, 36.3, 0), App.Vector(-55.2, 34.3, 0)),  # 23
], False)
sketch6.addConstraint([
    Sketcher.Constraint("Coincident", 0, 2, 1, 1),
    Sketcher.Constraint("Coincident", 1, 2, 2, 1),
    Sketcher.Constraint("Coincident", 2, 2, 3, 1),
    Sketcher.Constraint("Coincident", 3, 2, 4, 1),
    Sketcher.Constraint("Coincident", 4, 2, 5, 1),
    Sketcher.Constraint("Coincident", 5, 2, 6, 1),
    Sketcher.Constraint("Coincident", 6, 2, 7, 1),
    Sketcher.Constraint("Coincident", 7, 2, 8, 1),
    Sketcher.Constraint("Coincident", 8, 2, 9, 1),
    Sketcher.Constraint("Coincident", 9, 2, 10, 1),
    Sketcher.Constraint("Coincident", 10, 2, 11, 1),
    Sketcher.Constraint("Coincident", 11, 2, 0, 1),
    Sketcher.Constraint("Coincident", 12, 2, 13, 1),
    Sketcher.Constraint("Coincident", 13, 2, 14, 1),
    Sketcher.Constraint("Coincident", 14, 2, 15, 1),
    Sketcher.Constraint("Coincident", 15, 2, 16, 1),
    Sketcher.Constraint("Coincident", 16, 2, 17, 1),
    Sketcher.Constraint("Coincident", 17, 2, 18, 1),
    Sketcher.Constraint("Coincident", 18, 2, 19, 1),
    Sketcher.Constraint("Coincident", 19, 2, 20, 1),
    Sketcher.Constraint("Coincident", 20, 2, 21, 1),
    Sketcher.Constraint("Coincident", 21, 2, 22, 1),
    Sketcher.Constraint("Coincident", 22, 2, 23, 1),
    Sketcher.Constraint("Coincident", 23, 2, 12, 1),
    Sketcher.Constraint("Vertical", 0),
    Sketcher.Constraint("Horizontal", 1),
    Sketcher.Constraint("Vertical", 2),
    Sketcher.Constraint("Horizontal", 3),
    Sketcher.Constraint("Vertical", 4),
    Sketcher.Constraint("Horizontal", 5),
    Sketcher.Constraint("Vertical", 6),
    Sketcher.Constraint("Horizontal", 7),
    Sketcher.Constraint("Vertical", 8),
    Sketcher.Constraint("Horizontal", 9),
    Sketcher.Constraint("Vertical", 10),
    Sketcher.Constraint("Horizontal", 11),
    Sketcher.Constraint("Horizontal", 12),
    Sketcher.Constraint("Vertical", 13),
    Sketcher.Constraint("Horizontal", 14),
    Sketcher.Constraint("Vertical", 15),
    Sketcher.Constraint("Horizontal", 16),
    Sketcher.Constraint("Vertical", 17),
    Sketcher.Constraint("Horizontal", 18),
    Sketcher.Constraint("Vertical", 19),
    Sketcher.Constraint("Horizontal", 20),
    Sketcher.Constraint("Vertical", 21),
    Sketcher.Constraint("Horizontal", 22),
    Sketcher.Constraint("Vertical", 23),
    Sketcher.Constraint("Horizontal", 1, 2, 4, 2),
    Sketcher.Constraint("Horizontal", 7, 2, 10, 2),
    Sketcher.Constraint("Horizontal", 14, 2, 17, 2),
    Sketcher.Constraint("Horizontal", 12, 2, 19, 2),
    Sketcher.Constraint("Vertical", 4, 2, 7, 2),
    Sketcher.Constraint("Vertical", 2, 2, 9, 2),
    Sketcher.Constraint("Vertical", 11, 2, 12, 2),
    Sketcher.Constraint("Vertical", 10, 2, 14, 2),
    Sketcher.Constraint("Vertical", 8, 2, 16, 2),
    Sketcher.Constraint("Vertical", 6, 2, 18, 2),
    Sketcher.Constraint("Vertical", 17, 2, 20, 2),
    Sketcher.Constraint("Vertical", 15, 2, 22, 2),
    Sketcher.Constraint("Equal", 14, 0),
    Sketcher.Constraint("Equal", 4, 8),
    Sketcher.Constraint("Equal", 6, 13),
    Sketcher.Constraint("Equal", 10, 15),
    Sketcher.Constraint("Equal", 17, 21),
    Sketcher.Constraint("DistanceX", 1, 1, 1, 2, Q("3 mm")),
    Sketcher.Constraint("DistanceY", 2, 2, 2, 1, Q("2 mm")),
    Sketcher.Constraint("DistanceX", 3, 1, 3, 2, Q("2.4 mm")),
    Sketcher.Constraint("DistanceX", 1, 2, 5, 2, Q("7 mm")),
    Sketcher.Constraint("DistanceY", 12, 2, 2, 2, Q("65 mm")),
    Sketcher.Constraint("DistanceX", 0, 2, -1, 1, Q("58.201 mm")),
    Sketcher.Constraint("DistanceY", -1, 1, 0, 2, Q("101.299 mm")),
])
pocket5 = body.newObject("PartDesign::Pocket", "Pocket004")
pocket5.Profile = sketch6
pocket5.Type = "ThroughAll"

# Sketch on YZ plane
sketch7 = body.newObject("Sketcher::SketchObject", "Sketch006")
sketch7.AttachmentSupport = (doc.getObject("YZ_Plane"), [""])
sketch7.MapMode = "FlatFace"
sketch7.AttachmentOffset = App.Placement(App.Vector(0, 0, 6), App.Rotation())
sketch7.addGeometry([
    Part.Circle(App.Vector(-16.7, 184.3, 0), App.Vector(0, 0, 1), 1.5),  # 0
    Part.Circle(App.Vector(-47.7, 184.3, 0), App.Vector(0, 0, 1), 1.5),  # 1
    Part.Circle(App.Vector(-32.2, 199.8, 0), App.Vector(0, 0, 1), 12.5),  # 2
    Part.Circle(App.Vector(-47.7, 215.3, 0), App.Vector(0, 0, 1), 1.5),  # 3
    Part.Circle(App.Vector(-16.7, 215.3, 0), App.Vector(0, 0, 1), 1.5),  # 4
], False)
sketch7.addConstraint([
    Sketcher.Constraint("Equal", 0, 1),
    Sketcher.Constraint("Equal", 1, 3),
    Sketcher.Constraint("Equal", 3, 4),
    Sketcher.Constraint("Horizontal", 0, 3, 1, 3),
    Sketcher.Constraint("Horizontal", 3, 3, 4, 3),
    Sketcher.Constraint("Vertical", 1, 3, 3, 3),
    Sketcher.Constraint("Vertical", 0, 3, 4, 3),
    Sketcher.Constraint("Diameter", 0, Q("3 mm")),
    Sketcher.Constraint("Diameter", 2, Q("25 mm")),
    Sketcher.Constraint("DistanceX", 1, 3, 0, 3, Q("31 mm")),
    Sketcher.Constraint("DistanceY", 1, 3, 3, 3, Q("31 mm")),
    Sketcher.Constraint("DistanceX", 2, 3, 0, 3, Q("15.5 mm")),
    Sketcher.Constraint("DistanceY", 0, 3, 2, 3, Q("15.5 mm")),
    Sketcher.Constraint("DistanceX", 0, 3, -1, 1, Q("16.701 mm")),
    Sketcher.Constraint("DistanceY", -1, 1, 0, 3, Q("184.299 mm")),
])
pocket6 = body.newObject("PartDesign::Pocket", "Pocket005")
pocket6.Profile = sketch7
pocket6.Type = "ThroughAll"

# Sketch on YZ plane
sketch8 = body.newObject("Sketcher::SketchObject", "Sketch007")
sketch8.AttachmentSupport = (doc.getObject("YZ_Plane"), [""])
sketch8.MapMode = "FlatFace"
sketch8.addGeometry([
    Part.LineSegment(App.Vector(35.8, 198.3, 0), App.Vector(35.8, 195.3, 0)),  # 0
    Part.LineSegment(App.Vector(35.8, 195.3, 0), App.Vector(33.8, 195.3, 0)),  # 1
    Part.LineSegment(App.Vector(33.8, 195.3, 0), App.Vector(33.8, 193.3, 0)),  # 2
    Part.LineSegment(App.Vector(33.8, 193.3, 0), App.Vector(31.4, 193.3, 0)),  # 3
    Part.LineSegment(App.Vector(31.4, 193.3, 0), App.Vector(31.4, 195.3, 0)),  # 4
    Part.LineSegment(App.Vector(31.4, 195.3, 0), App.Vector(25.8, 195.3, 0)),  # 5
    Part.LineSegment(App.Vector(25.8, 195.3, 0), App.Vector(25.8, 198.3, 0)),  # 6
    Part.LineSegment(App.Vector(25.8, 198.3, 0), App.Vector(31.4, 198.3, 0)),  # 7
    Part.LineSegment(App.Vector(31.4, 198.3, 0), App.Vector(31.4, 200.3, 0)),  # 8
    Part.LineSegment(App.Vector(31.4, 200.3, 0), App.Vector(33.8, 200.3, 0)),  # 9
    Part.LineSegment(App.Vector(33.8, 200.3, 0), App.Vector(33.8, 198.3, 0)),  # 10
    Part.LineSegment(App.Vector(33.8, 198.3, 0), App.Vector(35.8, 198.3, 0)),  # 11
], False)
sketch8.addConstraint([
    Sketcher.Constraint("Coincident", 0, 2, 1, 1),
    Sketcher.Constraint("Coincident", 1, 2, 2, 1),
    Sketcher.Constraint("Coincident", 2, 2, 3, 1),
    Sketcher.Constraint("Coincident", 3, 2, 4, 1),
    Sketcher.Constraint("Coincident", 4, 2, 5, 1),
    Sketcher.Constraint("Coincident", 5, 2, 6, 1),
    Sketcher.Constraint("Coincident", 6, 2, 7, 1),
    Sketcher.Constraint("Coincident", 7, 2, 8, 1),
    Sketcher.Constraint("Coincident", 8, 2, 9, 1),
    Sketcher.Constraint("Coincident", 9, 2, 10, 1),
    Sketcher.Constraint("Coincident", 10, 2, 11, 1),
    Sketcher.Constraint("Coincident", 11, 2, 0, 1),
    Sketcher.Constraint("Vertical", 0),
    Sketcher.Constraint("Horizontal", 1),
    Sketcher.Constraint("Vertical", 2),
    Sketcher.Constraint("Horizontal", 3),
    Sketcher.Constraint("Vertical", 4),
    Sketcher.Constraint("Horizontal", 5),
    Sketcher.Constraint("Vertical", 6),
    Sketcher.Constraint("Horizontal", 7),
    Sketcher.Constraint("Vertical", 8),
    Sketcher.Constraint("Horizontal", 9),
    Sketcher.Constraint("Vertical", 10),
    Sketcher.Constraint("Horizontal", 11),
    Sketcher.Constraint("Horizontal", 1, 2, 4, 2),
    Sketcher.Constraint("Horizontal", 7, 2, 10, 2),
    Sketcher.Constraint("Vertical", 4, 2, 7, 2),
    Sketcher.Constraint("Vertical", 2, 2, 9, 2),
    Sketcher.Constraint("Equal", 11, 2),
    Sketcher.Constraint("Equal", 4, 8),
    Sketcher.Constraint("DistanceX", 1, 2, 1, 1, Q("2 mm")),
    Sketcher.Constraint("DistanceY", 0, 2, 0, 1, Q("3 mm")),
    Sketcher.Constraint("DistanceX", 3, 2, 3, 1, Q("2.4 mm")),
    Sketcher.Constraint("DistanceX", 5, 2, 0, 2, Q("10 mm")),
    Sketcher.Constraint("DistanceX", -1, 1, 0, 2, Q("35.799 mm")),
    Sketcher.Constraint("DistanceY", -1, 1, 0, 2, Q("195.299 mm")),
])
pocket7 = body.newObject("PartDesign::Pocket", "Pocket006")
pocket7.Profile = sketch8
pocket7.Length = 10
pocket7.Reversed = True
doc.recompute()

fillet = body.newObject("PartDesign::Fillet", "Fillet")
fillet.Base = (pocket7, edges_at(pocket7, [(3, 35.799, 82.799), (3, 13.562, -47.201)]))
fillet.Radius = 2

# Sketch on YZ plane
sketch9 = body.newObject("Sketcher::SketchObject", "Sketch008")
sketch9.AttachmentSupport = (doc.getObject("YZ_Plane"), [""])
sketch9.MapMode = "FlatFace"
sketch9.addGeometry([
    Part.Circle(App.Vector(23.9, 100.2, 0), App.Vector(0, 0, 1), 1.5),  # 0
    Part.Circle(App.Vector(-13.4, 89.1, 0), App.Vector(0, 0, 1), 1.5),  # 1
    Part.Circle(App.Vector(-8.8, 23.5, 0), App.Vector(0, 0, 1), 1.5),  # 2
    Part.Circle(App.Vector(23.9, 86.4, 0), App.Vector(0, 0, 1), 1.5),  # 3
    Part.Circle(App.Vector(-4.8, 80.5, 0), App.Vector(0, 0, 1), 1.5),  # 4
    Part.Circle(App.Vector(-21.4, 22, 0), App.Vector(0, 0, 1), 1.5),  # 5
], False)
sketch9.addConstraint([
    Sketcher.Constraint("Equal", 0, 1),
    Sketcher.Constraint("Equal", 1, 2),
    Sketcher.Constraint("Equal", 2, 3),
    Sketcher.Constraint("Equal", 3, 4),
    Sketcher.Constraint("Equal", 4, 5),
    Sketcher.Constraint("Vertical", 0, 3, 3, 3),
    Sketcher.Constraint("Diameter", 0, Q("3 mm")),
    Sketcher.Constraint("DistanceY", 5, 3, 2, 3, Q("1.5 mm")),
    Sketcher.Constraint("DistanceY", 2, 3, 3, 3, Q("62.93 mm")),
    Sketcher.Constraint("DistanceX", -1, 1, 0, 3, Q("23.904 mm")),
    Sketcher.Constraint("DistanceY", -1, 1, 0, 3, Q("100.184 mm")),
    Sketcher.Constraint("DistanceY", -1, 1, 1, 3, Q("89.097 mm")),
    Sketcher.Constraint("DistanceY", -1, 1, 2, 3, Q("23.512 mm")),
    Sketcher.Constraint("DistanceX", 5, 3, 2, 3, Q("12.544 mm")),
    Sketcher.Constraint("DistanceX", 5, 3, 1, 3, Q("7.943 mm")),
    Sketcher.Constraint("DistanceX", 1, 3, -1, 1, Q("13.4435 mm")),
    Sketcher.Constraint("DistanceX", 4, 3, -1, 1, Q("4.7593 mm")),
    Sketcher.Constraint("DistanceY", -1, 1, 4, 3, Q("80.5036 mm")),
])
pocket8 = body.newObject("PartDesign::Pocket", "Pocket007")
pocket8.Profile = sketch9
pocket8.Length = 10
pocket8.Reversed = True

# Sketch on YZ plane
sketch10 = body.newObject("Sketcher::SketchObject", "Sketch009")
sketch10.AttachmentSupport = (doc.getObject("YZ_Plane"), [""])
sketch10.MapMode = "FlatFace"
sketch10.addGeometry([
    Part.LineSegment(App.Vector(39.8, 176.8, 0), App.Vector(35.8, 176.8, 0)),  # 0
    Part.LineSegment(App.Vector(35.8, 176.8, 0), App.Vector(35.8, 191.8, 0)),  # 1
    Part.LineSegment(App.Vector(35.8, 191.8, 0), App.Vector(39.8, 191.8, 0)),  # 2
    Part.LineSegment(App.Vector(39.8, 191.8, 0), App.Vector(39.8, 176.8, 0)),  # 3
    Part.LineSegment(App.Vector(35.8, 101.8, 0), App.Vector(35.8, 116.8, 0)),  # 4
    Part.LineSegment(App.Vector(35.8, 116.8, 0), App.Vector(39.8, 116.8, 0)),  # 5
    Part.LineSegment(App.Vector(39.8, 116.8, 0), App.Vector(39.8, 101.8, 0)),  # 6
    Part.LineSegment(App.Vector(39.8, 101.8, 0), App.Vector(35.8, 101.8, 0)),  # 7
], False)
sketch10.addConstraint([
    Sketcher.Constraint("Coincident", 0, 2, 1, 1),
    Sketcher.Constraint("Coincident", 1, 2, 2, 1),
    Sketcher.Constraint("Coincident", 2, 2, 3, 1),
    Sketcher.Constraint("Coincident", 3, 2, 0, 1),
    Sketcher.Constraint("Coincident", 4, 2, 5, 1),
    Sketcher.Constraint("Coincident", 5, 2, 6, 1),
    Sketcher.Constraint("Coincident", 6, 2, 7, 1),
    Sketcher.Constraint("Coincident", 7, 2, 4, 1),
    Sketcher.Constraint("Horizontal", 0),
    Sketcher.Constraint("Vertical", 1),
    Sketcher.Constraint("Horizontal", 2),
    Sketcher.Constraint("Vertical", 3),
    Sketcher.Constraint("Vertical", 4),
    Sketcher.Constraint("Horizontal", 5),
    Sketcher.Constraint("Vertical", 6),
    Sketcher.Constraint("Horizontal", 7),
    Sketcher.Constraint("Vertical", 1, 2, 4, 2),
    Sketcher.Constraint("Vertical", 3, 2, 5, 2),
    Sketcher.Constraint("Equal", 3, 4),
    Sketcher.Constraint("DistanceX", 0, 2, 0, 1, Q("4 mm")),
    Sketcher.Constraint("DistanceY", 1, 1, 1, 2, Q("15 mm")),
    Sketcher.Constraint("DistanceY", 4, 2, 0, 2, Q("60 mm")),
    Sketcher.Constraint("DistanceX", -1, 1, 0, 2, Q("35.799 mm")),
    Sketcher.Constraint("DistanceY", -1, 1, 0, 2, Q("176.799 mm")),
])
pad2 = body.newObject("PartDesign::Pad", "Pad001")
pad2.Profile = sketch10
pad2.Length = 6

# Sketch on YZ plane
sketch11 = body.newObject("Sketcher::SketchObject", "Sketch010")
sketch11.AttachmentSupport = (doc.getObject("YZ_Plane"), [""])
sketch11.MapMode = "FlatFace"
sketch11.AttachmentOffset = App.Placement(App.Vector(0, 0, 6), App.Rotation())
sketch11.addGeometry([
    Part.Circle(App.Vector(-26.7, -44.2, 0), App.Vector(0, 0, 1), 1.5),
    Part.Circle(App.Vector(-53.7, -44.2, 0), App.Vector(0, 0, 1), 1.5),
    Part.Circle(App.Vector(-12.2, 179.8, 0), App.Vector(0, 0, 1), 1.5),
], False)
sketch11.addConstraint([
    Sketcher.Constraint("Equal", 0, 1),
    Sketcher.Constraint("Equal", 1, 2),
    Sketcher.Constraint("Horizontal", 0, 3, 1, 3),
    Sketcher.Constraint("Diameter", 0, Q("3 mm")),
    Sketcher.Constraint("DistanceX", 1, 3, 0, 3, Q("27 mm")),
    Sketcher.Constraint("DistanceY", 0, 3, 2, 3, Q("224 mm")),
    Sketcher.Constraint("DistanceX", 0, 3, 2, 3, Q("14.5 mm")),
    Sketcher.Constraint("DistanceX", 0, 3, -1, 1, Q("26.701 mm")),
    Sketcher.Constraint("DistanceY", 0, 3, -1, 1, Q("44.201 mm")),
])
pocket9 = body.newObject("PartDesign::Pocket", "Pocket008")
pocket9.Profile = sketch11
pocket9.Length = 6

doc.recompute()
